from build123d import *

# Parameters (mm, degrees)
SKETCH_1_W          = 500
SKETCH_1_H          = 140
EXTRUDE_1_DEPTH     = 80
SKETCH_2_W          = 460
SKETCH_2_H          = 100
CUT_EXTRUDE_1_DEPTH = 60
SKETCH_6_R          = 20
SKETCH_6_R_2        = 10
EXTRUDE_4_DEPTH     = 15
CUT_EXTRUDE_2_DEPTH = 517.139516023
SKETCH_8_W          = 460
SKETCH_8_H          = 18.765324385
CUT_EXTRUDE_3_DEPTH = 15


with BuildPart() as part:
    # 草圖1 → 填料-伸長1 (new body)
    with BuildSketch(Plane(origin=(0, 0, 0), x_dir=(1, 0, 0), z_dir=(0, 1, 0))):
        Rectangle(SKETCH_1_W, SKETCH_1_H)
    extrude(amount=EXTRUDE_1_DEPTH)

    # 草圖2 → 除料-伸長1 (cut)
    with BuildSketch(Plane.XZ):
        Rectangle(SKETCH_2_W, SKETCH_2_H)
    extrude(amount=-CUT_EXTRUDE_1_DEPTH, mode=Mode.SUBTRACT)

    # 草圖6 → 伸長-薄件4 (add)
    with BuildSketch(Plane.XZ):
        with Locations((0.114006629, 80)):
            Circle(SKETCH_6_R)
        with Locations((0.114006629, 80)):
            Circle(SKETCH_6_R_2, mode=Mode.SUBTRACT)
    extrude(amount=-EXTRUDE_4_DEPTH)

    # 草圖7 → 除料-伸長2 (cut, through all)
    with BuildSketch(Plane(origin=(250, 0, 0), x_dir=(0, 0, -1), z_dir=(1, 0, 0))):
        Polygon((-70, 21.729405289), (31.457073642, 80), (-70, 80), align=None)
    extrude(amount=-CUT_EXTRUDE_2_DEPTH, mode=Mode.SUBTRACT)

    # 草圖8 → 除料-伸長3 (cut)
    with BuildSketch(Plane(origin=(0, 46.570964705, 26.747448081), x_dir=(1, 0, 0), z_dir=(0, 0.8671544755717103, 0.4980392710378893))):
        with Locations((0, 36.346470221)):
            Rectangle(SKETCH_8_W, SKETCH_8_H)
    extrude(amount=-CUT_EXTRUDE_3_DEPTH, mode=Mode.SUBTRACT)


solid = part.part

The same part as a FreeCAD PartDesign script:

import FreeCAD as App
import Part
import Sketcher

V = App.Vector

doc = App.newDocument("Part")
body = doc.addObject("PartDesign::Body", "Body")

# Sketch on XZ plane
sketch1 = doc.addObject("Sketcher::SketchObject", "Sketch")
body.addObject(sketch1)
sketch1.AttachmentSupport = (doc.XZ_Plane, [""])
sketch1.MapMode = "FlatFace"
sketch1.addGeometry([
    Part.LineSegment(V(-250, -70, 0), V(-250, 70, 0)),
    Part.LineSegment(V(-250, 70, 0), V(250, 70, 0)),
    Part.LineSegment(V(250, 70, 0), V(250, -70, 0)),
    Part.LineSegment(V(250, -70, 0), V(-250, -70, 0)),
], False)
sketch1.addConstraint([
    Sketcher.Constraint("Coincident", 0, 2, 1, 1),
    Sketcher.Constraint("Coincident", 1, 2, 2, 1),
    Sketcher.Constraint("Coincident", 2, 2, 3, 1),
    Sketcher.Constraint("Coincident", 3, 2, 0, 1),
    Sketcher.Constraint("Vertical", 0),
    Sketcher.Constraint("Horizontal", 1),
    Sketcher.Constraint("Vertical", 2),
    Sketcher.Constraint("Horizontal", 3),
    Sketcher.Constraint("Symmetric", 0, 2, 2, 2, -1, 1),
    Sketcher.Constraint("DistanceX", 1, 1, 1, 2, 500.0),
    Sketcher.Constraint("DistanceY", 0, 1, 0, 2, 140.0),
])
pad1 = doc.addObject("PartDesign::Pad", "Pad")
body.addObject(pad1)
pad1.Profile = sketch1
pad1.Length = 80
pad1.Reversed = True

# Sketch on XZ plane
sketch2 = doc.addObject("Sketcher::SketchObject", "Sketch001")
body.addObject(sketch2)
sketch2.AttachmentSupport = (doc.XZ_Plane, [""])
sketch2.MapMode = "FlatFace"
sketch2.addGeometry([
    Part.LineSegment(V(-230, 50, 0), V(-230, -50, 0)),
    Part.LineSegment(V(-230, -50, 0), V(230, -50, 0)),
    Part.LineSegment(V(230, -50, 0), V(230, 50, 0)),
    Part.LineSegment(V(230, 50, 0), V(-230, 50, 0)),
], False)
sketch2.addConstraint([
    Sketcher.Constraint("Coincident", 0, 2, 1, 1),
    Sketcher.Constraint("Coincident", 1, 2, 2, 1),
    Sketcher.Constraint("Coincident", 2, 2, 3, 1),
    Sketcher.Constraint("Coincident", 3, 2, 0, 1),
    Sketcher.Constraint("Vertical", 0),
    Sketcher.Constraint("Horizontal", 1),
    Sketcher.Constraint("Vertical", 2),
    Sketcher.Constraint("Horizontal", 3),
    Sketcher.Constraint("Symmetric", 0, 2, 2, 2, -1, 1),
    Sketcher.Constraint("DistanceX", 1, 1, 1, 2, 460.0),
    Sketcher.Constraint("DistanceY", 0, 2, 0, 1, 100.0),
])
pocket1 = doc.addObject("PartDesign::Pocket", "Pocket")
body.addObject(pocket1)
pocket1.Profile = sketch2
pocket1.Length = 60

# Sketch on XZ plane
sketch3 = doc.addObject("Sketcher::SketchObject", "Sketch002")
body.addObject(sketch3)
sketch3.AttachmentSupport = (doc.XZ_Plane, [""])
sketch3.MapMode = "FlatFace"
sketch3.addGeometry([
    Part.Circle(V(0, 80, 0), V(0, 0, 1), 20),
    Part.Circle(V(0, 80, 0), V(0, 0, 1), 10),
], False)
sketch3.addConstraint([
    Sketcher.Constraint("Coincident", 1, 3, 0, 3),
    Sketcher.Constraint("Diameter", 0, 40.0),
    Sketcher.Constraint("Diameter", 1, 20.0),
    Sketcher.Constraint("DistanceY", -1, 1, 0, 3, 80.0),
    Sketcher.Constraint("DistanceX", -1, 1, 0, 3, 0.114007),
])
pad2 = doc.addObject("PartDesign::Pad", "Pad001")
body.addObject(pad2)
pad2.Profile = sketch3
pad2.Length = 15
pad2.Reversed = True

# Sketch on YZ plane
sketch4 = doc.addObject("Sketcher::SketchObject", "Sketch003")
body.addObject(sketch4)
sketch4.AttachmentSupport = (doc.YZ_Plane, [""])
sketch4.MapMode = "FlatFace"
sketch4.AttachmentOffset = App.Placement(V(0, 0, 250), App.Rotation())
sketch4.addGeometry([
    Part.LineSegment(V(22, 70, 0), V(80, -31, 0)),
    Part.LineSegment(V(80, -31, 0), V(80, 70, 0)),
    Part.LineSegment(V(80, 70, 0), V(22, 70, 0)),
], False)
sketch4.addConstraint([
    Sketcher.Constraint("Coincident", 0, 2, 1, 1),
    Sketcher.Constraint("Coincident", 1, 2, 2, 1),
    Sketcher.Constraint("Coincident", 2, 2, 0, 1),
    Sketcher.Constraint("Vertical", 1),
    Sketcher.Constraint("Horizontal", 2),
    Sketcher.Constraint("Distance", 0, 117.0),
    Sketcher.Constraint("DistanceX", -1, 1, 0, 2, 80.0),
    Sketcher.Constraint("DistanceY", -1, 1, 1, 2, 70.0),
    Sketcher.Constraint("DistanceX", 2, 2, 2, 1, 58.270595),
])
pocket2 = doc.addObject("PartDesign::Pocket", "Pocket001")
body.addObject(pocket2)
pocket2.Profile = sketch4
pocket2.Type = "ThroughAll"

# Sketch on an angled plane
sketch5 = doc.addObject("Sketcher::SketchObject", "Sketch004")
body.addObject(sketch5)
sketch5.Placement = App.Placement(V(0, 46.570965, 26.747448), App.Rotation(V(1, 0, 0), V(0, 0.498039271, -0.867154476), V(0, 0.867154476, 0.498039271), "ZXY"))
sketch5.addGeometry([
    Part.LineSegment(V(-230, 46, 0), V(-230, 27, 0)),
    Part.LineSegment(V(-230, 27, 0), V(230, 27, 0)),
    Part.LineSegment(V(230, 27, 0), V(230, 46, 0)),
    Part.LineSegment(V(230, 46, 0), V(-230, 46, 0)),
], False)
sketch5.addConstraint([
    Sketcher.Constraint("Coincident", 0, 2, 1, 1),
    Sketcher.Constraint("Coincident", 1, 2, 2, 1),
    Sketcher.Constraint("Coincident", 2, 2, 3, 1),
    Sketcher.Constraint("Coincident", 3, 2, 0, 1),
    Sketcher.Constraint("Vertical", 0),
    Sketcher.Constraint("Horizontal", 1),
    Sketcher.Constraint("Vertical", 2),
    Sketcher.Constraint("Horizontal", 3),
    Sketcher.Constraint("DistanceX", 1, 1, 1, 2, 460.0),
    Sketcher.Constraint("DistanceX", 0, 2, -1, 1, 230.0),
    Sketcher.Constraint("DistanceY", 0, 2, 0, 1, 18.765324),
    Sketcher.Constraint("DistanceY", -1, 1, 0, 2, 26.963808),
])
pocket3 = doc.addObject("PartDesign::Pocket", "Pocket002")
body.addObject(pocket3)
pocket3.Profile = sketch5
pocket3.Length = 15

doc.recompute()
